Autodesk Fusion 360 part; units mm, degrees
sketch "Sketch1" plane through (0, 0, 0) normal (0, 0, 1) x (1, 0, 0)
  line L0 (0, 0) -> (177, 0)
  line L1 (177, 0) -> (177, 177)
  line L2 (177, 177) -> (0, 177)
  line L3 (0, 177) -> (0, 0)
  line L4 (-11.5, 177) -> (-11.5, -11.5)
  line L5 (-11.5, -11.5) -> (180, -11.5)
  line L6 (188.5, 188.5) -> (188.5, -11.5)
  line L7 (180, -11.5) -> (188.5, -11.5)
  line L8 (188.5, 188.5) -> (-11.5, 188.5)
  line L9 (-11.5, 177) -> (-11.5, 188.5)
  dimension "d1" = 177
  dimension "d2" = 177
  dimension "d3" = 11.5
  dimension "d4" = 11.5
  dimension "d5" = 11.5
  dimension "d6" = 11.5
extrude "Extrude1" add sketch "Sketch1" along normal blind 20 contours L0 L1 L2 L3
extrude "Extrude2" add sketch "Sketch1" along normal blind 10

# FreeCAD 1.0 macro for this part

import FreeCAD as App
import Part
import Sketcher

V = App.Vector


def add_polygon(sketch, points):
    """Adds a closed chain of lines whose ends are joined by coincident constraints."""
    first, n = sketch.GeometryCount, len(points)
    for a, b in zip(points, points[1:] + points[:1]):
        sketch.addGeometry(Part.LineSegment(App.Vector(*a, 0), App.Vector(*b, 0)), False)
    for i in range(n):
        sketch.addConstraint(Sketcher.Constraint("Coincident", first + i, 2, first + (i + 1) % n, 1))

doc = App.newDocument("Part")
params = doc.addObject("Spreadsheet::Sheet", "Params")
for row, (alias, value) in enumerate([
    ("sketch1_width", "177 mm"),
    ("pad1_length", "20 mm"),
    ("sketch2_width", "177 mm"),
    ("pad2_length", "10 mm"),
], start=1):
    params.set(f"A{row}", alias)
    params.set(f"B{row}", "=" + value)
    params.setAlias(f"B{row}", alias)

body = doc.addObject("PartDesign::Body", "Body")

sketch1 = body.newObject("Sketcher::SketchObject", "Sketch")
sketch1.AttachmentSupport = (doc.getObject("XY_Plane"), [""])
sketch1.MapMode = "FlatFace"
add_polygon(sketch1, [(0, 177), (0, 0), (177, 0), (177, 177)])
sketch1.addConstraint([
    Sketcher.Constraint("Vertical", 0),
    Sketcher.Constraint("Horizontal", 1),
    Sketcher.Constraint("Vertical", 2),
    Sketcher.Constraint("Horizontal", 3),
    Sketcher.Constraint("Coincident", 0, 2, -1, 1),
    Sketcher.Constraint("Equal", 3, 0),
    Sketcher.Constraint("DistanceX", 1, 1, 1, 2, 177.0),
])
sketch1.setExpression("Constraints[10]", "Params.sketch1_width")
pad1 = body.newObject("PartDesign::Pad", "Pad")
pad1.Profile = sketch1
pad1.setExpression("Length", "Params.pad1_length")

sketch2 = body.newObject("Sketcher::SketchObject", "Sketch001")
sketch2.AttachmentSupport = (doc.getObject("XY_Plane"), [""])
sketch2.MapMode = "FlatFace"
add_polygon(sketch2, [(-12, 188), (-12, -12), (188, -12), (188, 188)])
add_polygon(sketch2, [(177, 0), (0, 0), (0, 177), (177, 177)])
sketch2.addConstraint([
    Sketcher.Constraint("Vertical", 0),
    Sketcher.Constraint("Horizontal", 1),
    Sketcher.Constraint("Vertical", 2),
    Sketcher.Constraint("Horizontal", 3),
    Sketcher.Constraint("Horizontal", 4),
    Sketcher.Constraint("Vertical", 5),
    Sketcher.Constraint("Horizontal", 6),
    Sketcher.Constraint("Vertical", 7),
    Sketcher.Constraint("Coincident", 4, 2, -1, 1),
    Sketcher.Constraint("Equal", 3, 0),
    Sketcher.Constraint("Equal", 6, 5),
    Sketcher.Constraint("DistanceX", 4, 2, 4, 1, 177.0),
    Sketcher.Constraint("DistanceX", 0, 2, -1, 1, 11.5),
    Sketcher.Constraint("DistanceY", 0, 2, -1, 1, 11.5),
    Sketcher.Constraint("DistanceY", 5, 2, 3, 2, 11.5),
])
sketch2.setExpression("Constraints[19]", "Params.sketch2_width")
pad2 = body.newObject("PartDesign::Pad", "Pad001")
pad2.Profile = sketch2
pad2.setExpression("Length", "Params.pad2_length")

doc.recompute()
